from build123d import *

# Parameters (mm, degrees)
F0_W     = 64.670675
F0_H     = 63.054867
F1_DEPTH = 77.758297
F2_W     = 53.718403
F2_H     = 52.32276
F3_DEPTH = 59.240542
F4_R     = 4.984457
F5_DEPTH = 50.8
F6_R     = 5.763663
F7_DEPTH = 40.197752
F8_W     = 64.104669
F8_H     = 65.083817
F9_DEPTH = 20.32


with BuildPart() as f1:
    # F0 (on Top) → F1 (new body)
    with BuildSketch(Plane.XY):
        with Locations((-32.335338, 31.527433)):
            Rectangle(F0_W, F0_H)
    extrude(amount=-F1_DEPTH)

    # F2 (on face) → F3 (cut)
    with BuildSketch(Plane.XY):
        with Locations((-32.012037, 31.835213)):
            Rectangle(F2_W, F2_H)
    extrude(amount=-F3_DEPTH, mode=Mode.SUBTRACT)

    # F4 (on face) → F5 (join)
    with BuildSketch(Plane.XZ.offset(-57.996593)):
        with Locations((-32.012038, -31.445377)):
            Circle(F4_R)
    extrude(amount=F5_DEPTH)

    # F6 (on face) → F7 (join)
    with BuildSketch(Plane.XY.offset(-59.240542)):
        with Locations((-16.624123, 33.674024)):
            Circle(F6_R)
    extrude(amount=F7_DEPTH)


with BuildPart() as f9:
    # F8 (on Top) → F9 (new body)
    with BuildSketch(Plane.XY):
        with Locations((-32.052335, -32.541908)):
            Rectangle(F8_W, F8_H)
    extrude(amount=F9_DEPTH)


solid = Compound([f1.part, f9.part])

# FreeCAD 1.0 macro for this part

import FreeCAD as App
import Part
import Sketcher
from FreeCAD import Vector
Q = App.Units.Quantity

doc = App.newDocument("Part")
body = doc.addObject("PartDesign::Body", "Body")

# Sketch on XY plane
sketch1 = body.newObject("Sketcher::SketchObject", "Sketch")
sketch1.AttachmentSupport = (doc.getObject("XY_Plane"), [""])
sketch1.MapMode = "FlatFace"
sketch1.addGeometry([
    Part.LineSegment(Vector(-65, 63, 0), Vector(-65, 0, 0)),
    Part.LineSegment(Vector(-65, 0, 0), Vector(0, 0, 0)),
    Part.LineSegment(Vector(0, 0, 0), Vector(0, 63, 0)),
    Part.LineSegment(Vector(0, 63, 0), Vector(-65, 63, 0)),
], False)
sketch1.addConstraint([
    Sketcher.Constraint("Coincident", 0, 2, 1, 1),
    Sketcher.Constraint("Coincident", 1, 2, 2, 1),
    Sketcher.Constraint("Coincident", 2, 2, 3, 1),
    Sketcher.Constraint("Coincident", 3, 2, 0, 1),
    Sketcher.Constraint("Vertical", 0),
    Sketcher.Constraint("Horizontal", 1),
    Sketcher.Constraint("Vertical", 2),
    Sketcher.Constraint("Horizontal", 3),
    Sketcher.Constraint("Coincident", 1, 2, -1, 1),
    Sketcher.Constraint("DistanceX", 1, 1, 1, 2, Q("64.670675 mm")),
    Sketcher.Constraint("DistanceY", 0, 2, 0, 1, Q("63.054867 mm")),
])
pad1 = body.newObject("PartDesign::Pad", "Pad")
pad1.Profile = sketch1
pad1.Length = 77.758297
pad1.Reversed = True

# Sketch on XY plane
sketch2 = body.newObject("Sketcher::SketchObject", "Sketch001")
sketch2.AttachmentSupport = (doc.getObject("XY_Plane"), [""])
sketch2.MapMode = "FlatFace"
sketch2.addGeometry([
    Part.LineSegment(Vector(-59, 58, 0), Vector(-59, 6, 0)),
    Part.LineSegment(Vector(-59, 6, 0), Vector(-5, 6, 0)),
    Part.LineSegment(Vector(-5, 6, 0), Vector(-5, 58, 0)),
    Part.LineSegment(Vector(-5, 58, 0), Vector(-59, 58, 0)),
], False)
sketch2.addConstraint([
    Sketcher.Constraint("Coincident", 0, 2, 1, 1),
    Sketcher.Constraint("Coincident", 1, 2, 2, 1),
    Sketcher.Constraint("Coincident", 2, 2, 3, 1),
    Sketcher.Constraint("Coincident", 3, 2, 0, 1),
    Sketcher.Constraint("Vertical", 0),
    Sketcher.Constraint("Horizontal", 1),
    Sketcher.Constraint("Vertical", 2),
    Sketcher.Constraint("Horizontal", 3),
    Sketcher.Constraint("DistanceY", 0, 2, 0, 1, Q("52.32276 mm")),
    Sketcher.Constraint("DistanceX", 1, 1, 1, 2, Q("53.718403 mm")),
    Sketcher.Constraint("DistanceX", 0, 2, -1, 1, Q("58.871238 mm")),
    Sketcher.Constraint("DistanceY", -1, 1, 0, 2, Q("5.673833 mm")),
])
pocket1 = body.newObject("PartDesign::Pocket", "Pocket")
pocket1.Profile = sketch2
pocket1.Length = 59.240542

# Sketch on XZ plane
sketch3 = body.newObject("Sketcher::SketchObject", "Sketch002")
sketch3.AttachmentSupport = (doc.getObject("XZ_Plane"), [""])
sketch3.MapMode = "FlatFace"
sketch3.AttachmentOffset = App.Placement(Vector(0, 0, -57.996593), App.Rotation())
sketch3.addGeometry(Part.Circle(Vector(-32, -31.4, 0), Vector(0, 0, 1), 5), False)
sketch3.addConstraint([
    Sketcher.Constraint("Diameter", 0, Q("9.968914 mm")),
    Sketcher.Constraint("DistanceX", 0, 3, -1, 1, Q("32.012038 mm")),
    Sketcher.Constraint("DistanceY", 0, 3, -1, 1, Q("31.445377 mm")),
])
pad2 = body.newObject("PartDesign::Pad", "Pad001")
pad2.Profile = sketch3
pad2.Length = Q("2 in")

# Sketch on XY plane
sketch4 = body.newObject("Sketcher::SketchObject", "Sketch003")
sketch4.AttachmentSupport = (doc.getObject("XY_Plane"), [""])
sketch4.MapMode = "FlatFace"
sketch4.AttachmentOffset = App.Placement(Vector(0, 0, -59.240542), App.Rotation())
sketch4.addGeometry(Part.Circle(Vector(-17, 34, 0), Vector(0, 0, 1), 6), False)
sketch4.addConstraint([
    Sketcher.Constraint("Diameter", 0, Q("11.527326 mm")),
    Sketcher.Constraint("DistanceX", 0, 3, -1, 1, Q("16.624123 mm")),
    Sketcher.Constraint("DistanceY", -1, 1, 0, 3, Q("33.674024 mm")),
])
pad3 = body.newObject("PartDesign::Pad", "Pad002")
pad3.Profile = sketch4
pad3.Length = 40.197752
body2 = doc.addObject("PartDesign::Body", "Body001")

# Sketch on XY plane
sketch5 = body2.newObject("Sketcher::SketchObject", "Sketch004")
sketch5.AttachmentSupport = (doc.getObject("XY_Plane001"), [""])
sketch5.MapMode = "FlatFace"
sketch5.addGeometry([
    Part.LineSegment(Vector(-64, 0, 0), Vector(-64, -65, 0)),
    Part.LineSegment(Vector(-64, -65, 0), Vector(0, -65, 0)),
    Part.LineSegment(Vector(0, -65, 0), Vector(0, 0, 0)),
    Part.LineSegment(Vector(0, 0, 0), Vector(-64, 0, 0)),
], False)
sketch5.addConstraint([
    Sketcher.Constraint("Coincident", 0, 2, 1, 1),
    Sketcher.Constraint("Coincident", 1, 2, 2, 1),
    Sketcher.Constraint("Coincident", 2, 2, 3, 1),
    Sketcher.Constraint("Coincident", 3, 2, 0, 1),
    Sketcher.Constraint("Vertical", 0),
    Sketcher.Constraint("Horizontal", 1),
    Sketcher.Constraint("Vertical", 2),
    Sketcher.Constraint("Horizontal", 3),
    Sketcher.Constraint("Coincident", 2, 2, -1, 1),
    Sketcher.Constraint("DistanceX", 1, 1, 1, 2, Q("64.104669 mm")),
    Sketcher.Constraint("DistanceY", 0, 2, 0, 1, Q("65.083817 mm")),
])
pad4 = body2.newObject("PartDesign::Pad", "Pad003")
pad4.Profile = sketch5
pad4.Length = Q("0.8 in")

doc.recompute()
